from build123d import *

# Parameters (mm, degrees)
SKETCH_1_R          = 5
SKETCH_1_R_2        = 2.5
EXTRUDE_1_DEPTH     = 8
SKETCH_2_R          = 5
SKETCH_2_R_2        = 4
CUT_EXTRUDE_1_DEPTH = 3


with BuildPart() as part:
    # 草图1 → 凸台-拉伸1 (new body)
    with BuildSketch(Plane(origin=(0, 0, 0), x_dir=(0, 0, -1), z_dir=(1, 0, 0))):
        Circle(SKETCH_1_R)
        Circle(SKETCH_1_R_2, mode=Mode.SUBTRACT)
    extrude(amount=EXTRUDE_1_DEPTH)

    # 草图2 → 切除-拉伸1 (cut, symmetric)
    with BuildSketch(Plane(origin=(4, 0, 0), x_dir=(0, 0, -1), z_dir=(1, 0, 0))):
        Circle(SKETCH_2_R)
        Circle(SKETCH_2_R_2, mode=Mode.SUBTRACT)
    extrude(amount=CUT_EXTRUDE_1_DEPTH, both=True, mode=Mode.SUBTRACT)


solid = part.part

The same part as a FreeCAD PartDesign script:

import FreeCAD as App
import Part
import Sketcher

doc = App.newDocument("Part")
body = doc.addObject("PartDesign::Body", "Body")

sketch1 = body.newObject("Sketcher::SketchObject", "Sketch")
sketch1.AttachmentSupport = (doc.getObject("YZ_Plane"), [""])
sketch1.MapMode = "FlatFace"
sketch1.addGeometry(Part.Circle(App.Vector(0, 0, 0), App.Vector(0, 0, 1), 5), False)
sketch1.addGeometry(Part.Circle(App.Vector(0, 0, 0), App.Vector(0, 0, 1), 2.5), False)
sketch1.addConstraint(Sketcher.Constraint("Coincident", 0, 3, -1, 1))
sketch1.addConstraint(Sketcher.Constraint("Coincident", 1, 3, -1, 1))
sketch1.addConstraint(Sketcher.Constraint("Diameter", 0, 10.0))
sketch1.addConstraint(Sketcher.Constraint("Diameter", 1, 5.0))
pad1 = body.newObject("PartDesign::Pad", "Pad")
pad1.Profile = sketch1
pad1.Length = 8

sketch2 = body.newObject("Sketcher::SketchObject", "Sketch001")
sketch2.AttachmentSupport = (doc.getObject("YZ_Plane"), [""])
sketch2.MapMode = "FlatFace"
sketch2.AttachmentOffset = App.Placement(App.Vector(0, 0, 4), App.Rotation())
sketch2.addGeometry(Part.Circle(App.Vector(0, 0, 0), App.Vector(0, 0, 1), 5), False)
sketch2.addGeometry(Part.Circle(App.Vector(0, 0, 0), App.Vector(0, 0, 1), 4), False)
sketch2.addConstraint(Sketcher.Constraint("Coincident", 0, 3, -1, 1))
sketch2.addConstraint(Sketcher.Constraint("Coincident", 1, 3, -1, 1))
sketch2.addConstraint(Sketcher.Constraint("Diameter", 0, 10.0))
sketch2.addConstraint(Sketcher.Constraint("Diameter", 1, 8.0))
pocket1 = body.newObject("PartDesign::Pocket", "Pocket")
pocket1.Profile = sketch2
pocket1.Length = 6
pocket1.Midplane = True

doc.recompute()
